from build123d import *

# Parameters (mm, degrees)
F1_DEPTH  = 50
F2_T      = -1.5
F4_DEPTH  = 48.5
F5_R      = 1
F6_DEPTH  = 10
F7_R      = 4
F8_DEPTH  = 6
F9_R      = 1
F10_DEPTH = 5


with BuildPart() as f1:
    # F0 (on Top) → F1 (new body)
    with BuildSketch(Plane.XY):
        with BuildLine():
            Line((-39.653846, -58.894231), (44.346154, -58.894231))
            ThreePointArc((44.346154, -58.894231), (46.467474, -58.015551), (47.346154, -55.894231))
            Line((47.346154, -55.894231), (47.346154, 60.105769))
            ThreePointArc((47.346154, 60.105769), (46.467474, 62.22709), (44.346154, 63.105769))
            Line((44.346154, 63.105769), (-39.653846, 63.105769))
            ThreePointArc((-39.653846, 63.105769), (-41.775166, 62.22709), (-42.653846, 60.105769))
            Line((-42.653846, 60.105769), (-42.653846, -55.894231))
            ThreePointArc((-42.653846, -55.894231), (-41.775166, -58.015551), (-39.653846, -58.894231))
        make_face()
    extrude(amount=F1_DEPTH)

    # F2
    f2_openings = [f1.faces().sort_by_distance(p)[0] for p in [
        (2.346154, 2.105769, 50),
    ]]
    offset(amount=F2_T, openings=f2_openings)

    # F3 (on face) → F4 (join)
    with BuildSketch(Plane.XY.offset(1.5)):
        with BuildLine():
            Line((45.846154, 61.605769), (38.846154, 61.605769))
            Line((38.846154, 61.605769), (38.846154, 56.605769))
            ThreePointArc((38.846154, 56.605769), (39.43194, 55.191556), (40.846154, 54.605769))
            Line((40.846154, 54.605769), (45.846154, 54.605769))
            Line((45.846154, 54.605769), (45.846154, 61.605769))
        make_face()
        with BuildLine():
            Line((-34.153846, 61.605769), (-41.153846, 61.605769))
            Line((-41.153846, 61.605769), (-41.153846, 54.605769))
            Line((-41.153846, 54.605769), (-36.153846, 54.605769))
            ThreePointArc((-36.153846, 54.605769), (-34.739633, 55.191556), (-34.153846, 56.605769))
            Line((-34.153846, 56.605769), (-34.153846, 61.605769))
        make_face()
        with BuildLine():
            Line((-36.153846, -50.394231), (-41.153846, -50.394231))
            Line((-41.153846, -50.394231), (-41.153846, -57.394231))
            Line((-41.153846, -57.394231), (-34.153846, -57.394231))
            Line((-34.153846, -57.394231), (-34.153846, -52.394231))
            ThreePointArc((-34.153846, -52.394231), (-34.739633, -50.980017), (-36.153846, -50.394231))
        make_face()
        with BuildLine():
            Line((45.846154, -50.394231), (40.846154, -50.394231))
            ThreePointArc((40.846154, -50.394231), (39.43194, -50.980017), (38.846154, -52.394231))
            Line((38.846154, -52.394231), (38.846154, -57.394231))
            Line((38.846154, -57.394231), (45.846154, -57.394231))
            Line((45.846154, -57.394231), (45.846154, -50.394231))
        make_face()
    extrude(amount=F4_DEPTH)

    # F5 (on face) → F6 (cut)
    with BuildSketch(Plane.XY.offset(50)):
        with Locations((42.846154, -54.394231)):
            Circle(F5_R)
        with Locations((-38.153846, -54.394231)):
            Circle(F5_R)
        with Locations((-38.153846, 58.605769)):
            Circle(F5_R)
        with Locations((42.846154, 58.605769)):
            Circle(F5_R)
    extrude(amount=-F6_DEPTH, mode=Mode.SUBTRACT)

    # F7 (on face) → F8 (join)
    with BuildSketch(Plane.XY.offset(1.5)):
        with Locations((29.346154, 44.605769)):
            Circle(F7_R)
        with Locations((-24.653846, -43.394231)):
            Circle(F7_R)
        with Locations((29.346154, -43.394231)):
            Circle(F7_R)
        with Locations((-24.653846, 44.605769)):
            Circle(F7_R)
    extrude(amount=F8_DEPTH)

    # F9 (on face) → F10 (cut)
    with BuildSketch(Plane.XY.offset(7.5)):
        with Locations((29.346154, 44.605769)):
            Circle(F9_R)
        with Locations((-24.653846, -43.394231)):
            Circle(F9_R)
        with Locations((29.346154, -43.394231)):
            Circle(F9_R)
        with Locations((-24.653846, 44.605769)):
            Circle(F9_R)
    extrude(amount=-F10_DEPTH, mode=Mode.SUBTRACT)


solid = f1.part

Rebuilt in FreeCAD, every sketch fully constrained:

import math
import FreeCAD as App
import Part
import Sketcher
Q = App.Units.Quantity


def faces_at(feature, points):
    """Names of the faces that lie closest to the given points."""
    faces = feature.Shape.Faces
    near = lambda p: min(range(len(faces)), key=lambda i: faces[i].distToShape(Part.Vertex(*p))[0])
    return sorted({f"Face{near(p) + 1}" for p in points})

doc = App.newDocument("Part")
body = doc.addObject("PartDesign::Body", "Body")

# Sketch on XY plane
sketch1 = body.newObject("Sketcher::SketchObject", "Sketch")
sketch1.AttachmentSupport = (doc.getObject("XY_Plane"), [""])
sketch1.MapMode = "FlatFace"
sketch1.addGeometry(Part.LineSegment(App.Vector(-39.653846, -58.894231, 0), App.Vector(44.346154, -58.894231, 0)), False)
sketch1.addGeometry(Part.ArcOfCircle(Part.Circle(App.Vector(44.346153, -55.89423, 0), App.Vector(0, 0, 1), 3.000001), math.radians(-89.999978), math.radians(-0.000022)), False)
sketch1.addGeometry(Part.LineSegment(App.Vector(47.346154, -55.894231, 0), App.Vector(47.346154, 60.105769, 0)), False)
sketch1.addGeometry(Part.ArcOfCircle(Part.Circle(App.Vector(44.346155, 60.10577, 0), App.Vector(0, 0, 1), 2.999999), math.radians(-0.00001), math.radians(90.00001)), False)
sketch1.addGeometry(Part.LineSegment(App.Vector(44.346154, 63.105769, 0), App.Vector(-39.653846, 63.105769, 0)), False)
sketch1.addGeometry(Part.ArcOfCircle(Part.Circle(App.Vector(-39.653847, 60.10577, 0), App.Vector(0, 0, 1), 2.999999), math.radians(89.99999), math.radians(180.00001)), False)
sketch1.addGeometry(Part.LineSegment(App.Vector(-42.653846, 60.105769, 0), App.Vector(-42.653846, -55.894231, 0)), False)
sketch1.addGeometry(Part.ArcOfCircle(Part.Circle(App.Vector(-39.653845, -55.89423, 0), App.Vector(0, 0, 1), 3.000001), math.radians(-179.999978), math.radians(-90.000022)), False)
sketch1.addConstraint(Sketcher.Constraint("Tangent", 0, 2, 1, 1))
sketch1.addConstraint(Sketcher.Constraint("Tangent", 1, 2, 2, 1))
sketch1.addConstraint(Sketcher.Constraint("Tangent", 2, 2, 3, 1))
sketch1.addConstraint(Sketcher.Constraint("Tangent", 3, 2, 4, 1))
sketch1.addConstraint(Sketcher.Constraint("Tangent", 4, 2, 5, 1))
sketch1.addConstraint(Sketcher.Constraint("Tangent", 5, 2, 6, 1))
sketch1.addConstraint(Sketcher.Constraint("Tangent", 6, 2, 7, 1))
sketch1.addConstraint(Sketcher.Constraint("Tangent", 7, 2, 0, 1))
sketch1.addConstraint(Sketcher.Constraint("Horizontal", 0))
sketch1.addConstraint(Sketcher.Constraint("Vertical", 2))
sketch1.addConstraint(Sketcher.Constraint("Horizontal", 4))
sketch1.addConstraint(Sketcher.Constraint("Vertical", 6))
sketch1.addConstraint(Sketcher.Constraint("Equal", 1, 3))
sketch1.addConstraint(Sketcher.Constraint("Equal", 3, 5))
sketch1.addConstraint(Sketcher.Constraint("Equal", 5, 7))
sketch1.addConstraint(Sketcher.Constraint("Radius", 1, Q("3.000001 mm")))
sketch1.addConstraint(Sketcher.Constraint("DistanceX", 0, 1, 0, 2, Q("84 mm")))
sketch1.addConstraint(Sketcher.Constraint("DistanceY", 2, 1, 2, 2, Q("116 mm")))
sketch1.addConstraint(Sketcher.Constraint("DistanceY", 1, 3, -1, 1, Q("55.89423 mm")))
sketch1.addConstraint(Sketcher.Constraint("DistanceX", -1, 1, 1, 3, Q("44.346153 mm")))
pad1 = body.newObject("PartDesign::Pad", "Pad")
pad1.Profile = sketch1
pad1.Length = 50
doc.recompute()

thickness = body.newObject("PartDesign::Thickness", "Thickness")
thickness.Base = (pad1, faces_at(pad1, [(2.346, 2.106, 50)]))
thickness.Value = 1.5
thickness.Reversed = True
thickness.Join = "Arc"

# Sketch on XY plane
sketch2 = body.newObject("Sketcher::SketchObject", "Sketch001")
sketch2.AttachmentSupport = (doc.getObject("XY_Plane"), [""])
sketch2.MapMode = "FlatFace"
sketch2.AttachmentOffset = App.Placement(App.Vector(0, 0, 1.5), App.Rotation())
sketch2.addGeometry(Part.LineSegment(App.Vector(45.846154, 61.605769, 0), App.Vector(38.846154, 61.605769, 0)), False)
sketch2.addGeometry(Part.LineSegment(App.Vector(38.846154, 61.605769, 0), App.Vector(38.846154, 56.605769, 0)), False)
sketch2.addGeometry(Part.ArcOfCircle(Part.Circle(App.Vector(40.846154, 56.605769, 0), App.Vector(0, 0, 1), 2), math.radians(-179.999994), math.radians(-90.000006)), False)
sketch2.addGeometry(Part.LineSegment(App.Vector(40.846154, 54.605769, 0), App.Vector(45.846154, 54.605769, 0)), False)
sketch2.addGeometry(Part.LineSegment(App.Vector(45.846154, 54.605769, 0), App.Vector(45.846154, 61.605769, 0)), False)
sketch2.addGeometry(Part.LineSegment(App.Vector(-34.153846, 61.605769, 0), App.Vector(-41.153846, 61.605769, 0)), False)
sketch2.addGeometry(Part.LineSegment(App.Vector(-41.153846, 61.605769, 0), App.Vector(-41.153846, 54.605769, 0)), False)
sketch2.addGeometry(Part.LineSegment(App.Vector(-41.153846, 54.605769, 0), App.Vector(-36.153846, 54.605769, 0)), False)
sketch2.addGeometry(Part.ArcOfCircle(Part.Circle(App.Vector(-36.153848, 56.605771, 0), App.Vector(0, 0, 1), 2.000002), math.radians(-89.999945), math.radians(-0.000055)), False)
sketch2.addGeometry(Part.LineSegment(App.Vector(-34.153846, 56.605769, 0), App.Vector(-34.153846, 61.605769, 0)), False)
sketch2.addGeometry(Part.LineSegment(App.Vector(-36.153846, -50.394231, 0), App.Vector(-41.153846, -50.394231, 0)), False)
sketch2.addGeometry(Part.LineSegment(App.Vector(-41.153846, -50.394231, 0), App.Vector(-41.153846, -57.394231, 0)), False)
sketch2.addGeometry(Part.LineSegment(App.Vector(-41.153846, -57.394231, 0), App.Vector(-34.153846, -57.394231, 0)), False)
sketch2.addGeometry(Part.LineSegment(App.Vector(-34.153846, -57.394231, 0), App.Vector(-34.153846, -52.394231, 0)), False)
sketch2.addGeometry(Part.ArcOfCircle(Part.Circle(App.Vector(-36.153846, -52.394231, 0), App.Vector(0, 0, 1), 2), math.radians(0.000006), math.radians(89.999994)), False)
sketch2.addGeometry(Part.LineSegment(App.Vector(45.846154, -50.394231, 0), App.Vector(40.846154, -50.394231, 0)), False)
sketch2.addGeometry(Part.ArcOfCircle(Part.Circle(App.Vector(40.846153, -52.39423, 0), App.Vector(0, 0, 1), 1.999999), math.radians(89.999957), math.radians(180.000043)), False)
sketch2.addGeometry(Part.LineSegment(App.Vector(38.846154, -52.394231, 0), App.Vector(38.846154, -57.394231, 0)), False)
sketch2.addGeometry(Part.LineSegment(App.Vector(38.846154, -57.394231, 0), App.Vector(45.846154, -57.394231, 0)), False)
sketch2.addGeometry(Part.LineSegment(App.Vector(45.846154, -57.394231, 0), App.Vector(45.846154, -50.394231, 0)), False)
sketch2.addConstraint(Sketcher.Constraint("Coincident", 0, 2, 1, 1))
sketch2.addConstraint(Sketcher.Constraint("Tangent", 1, 2, 2, 1))
sketch2.addConstraint(Sketcher.Constraint("Tangent", 2, 2, 3, 1))
sketch2.addConstraint(Sketcher.Constraint("Coincident", 3, 2, 4, 1))
sketch2.addConstraint(Sketcher.Constraint("Coincident", 4, 2, 0, 1))
sketch2.addConstraint(Sketcher.Constraint("Coincident", 5, 2, 6, 1))
sketch2.addConstraint(Sketcher.Constraint("Coincident", 6, 2, 7, 1))
sketch2.addConstraint(Sketcher.Constraint("Tangent", 7, 2, 8, 1))
sketch2.addConstraint(Sketcher.Constraint("Tangent", 8, 2, 9, 1))
sketch2.addConstraint(Sketcher.Constraint("Coincident", 9, 2, 5, 1))
sketch2.addConstraint(Sketcher.Constraint("Coincident", 10, 2, 11, 1))
sketch2.addConstraint(Sketcher.Constraint("Coincident", 11, 2, 12, 1))
sketch2.addConstraint(Sketcher.Constraint("Coincident", 12, 2, 13, 1))
sketch2.addConstraint(Sketcher.Constraint("Tangent", 13, 2, 14, 1))
sketch2.addConstraint(Sketcher.Constraint("Tangent", 14, 2, 10, 1))
sketch2.addConstraint(Sketcher.Constraint("Tangent", 15, 2, 16, 1))
sketch2.addConstraint(Sketcher.Constraint("Tangent", 16, 2, 17, 1))
sketch2.addConstraint(Sketcher.Constraint("Coincident", 17, 2, 18, 1))
sketch2.addConstraint(Sketcher.Constraint("Coincident", 18, 2, 19, 1))
sketch2.addConstraint(Sketcher.Constraint("Coincident", 19, 2, 15, 1))
sketch2.addConstraint(Sketcher.Constraint("Horizontal", 0))
sketch2.addConstraint(Sketcher.Constraint("Vertical", 1))
sketch2.addConstraint(Sketcher.Constraint("Horizontal", 3))
sketch2.addConstraint(Sketcher.Constraint("Vertical", 4))
sketch2.addConstraint(Sketcher.Constraint("Horizontal", 5))
sketch2.addConstraint(Sketcher.Constraint("Vertical", 6))
sketch2.addConstraint(Sketcher.Constraint("Horizontal", 7))
sketch2.addConstraint(Sketcher.Constraint("Vertical", 9))
sketch2.addConstraint(Sketcher.Constraint("Horizontal", 10))
sketch2.addConstraint(Sketcher.Constraint("Vertical", 11))
sketch2.addConstraint(Sketcher.Constraint("Horizontal", 12))
sketch2.addConstraint(Sketcher.Constraint("Vertical", 13))
sketch2.addConstraint(Sketcher.Constraint("Horizontal", 15))
sketch2.addConstraint(Sketcher.Constraint("Vertical", 17))
sketch2.addConstraint(Sketcher.Constraint("Horizontal", 18))
sketch2.addConstraint(Sketcher.Constraint("Vertical", 19))
sketch2.addConstraint(Sketcher.Constraint("Equal", 2, 8))
sketch2.addConstraint(Sketcher.Constraint("Equal", 8, 14))
sketch2.addConstraint(Sketcher.Constraint("Equal", 14, 16))
sketch2.addConstraint(Sketcher.Constraint("Horizontal", 2, 3, 8, 3))
sketch2.addConstraint(Sketcher.Constraint("Horizontal", 14, 3, 16, 3))
sketch2.addConstraint(Sketcher.Constraint("Horizontal", 4, 2, 5, 2))
sketch2.addConstraint(Sketcher.Constraint("Horizontal", 12, 2, 17, 2))
sketch2.addConstraint(Sketcher.Constraint("Vertical", 8, 3, 14, 3))
sketch2.addConstraint(Sketcher.Constraint("Vertical", 2, 3, 16, 3))
sketch2.addConstraint(Sketcher.Constraint("Vertical", 6, 2, 10, 2))
sketch2.addConstraint(Sketcher.Constraint("Vertical", 4, 2, 18, 2))
sketch2.addConstraint(Sketcher.Constraint("Equal", 0, 5))
sketch2.addConstraint(Sketcher.Constraint("Equal", 15, 1))
sketch2.addConstraint(Sketcher.Constraint("Equal", 6, 11))
sketch2.addConstraint(Sketcher.Constraint("Radius", 2, Q("2 mm")))
sketch2.addConstraint(Sketcher.Constraint("DistanceX", 0, 2, 0, 1, Q("7 mm")))
sketch2.addConstraint(Sketcher.Constraint("DistanceX", 14, 3, 2, 3, Q("77 mm")))
sketch2.addConstraint(Sketcher.Constraint("DistanceY", 14, 3, 2, 3, Q("109 mm")))
sketch2.addConstraint(Sketcher.Constraint("DistanceY", -1, 1, 2, 3, Q("56.605769 mm")))
sketch2.addConstraint(Sketcher.Constraint("DistanceX", -1, 1, 2, 3, Q("40.846154 mm")))
pad2 = body.newObject("PartDesign::Pad", "Pad001")
pad2.Profile = sketch2
pad2.Length = 48.5

# Sketch on XY plane
sketch3 = body.newObject("Sketcher::SketchObject", "Sketch002")
sketch3.AttachmentSupport = (doc.getObject("XY_Plane"), [""])
sketch3.MapMode = "FlatFace"
sketch3.AttachmentOffset = App.Placement(App.Vector(0, 0, 50), App.Rotation())
sketch3.addGeometry(Part.Circle(App.Vector(42.846154, -54.394231, 0), App.Vector(0, 0, 1), 1), False)
sketch3.addGeometry(Part.Circle(App.Vector(-38.153846, -54.394231, 0), App.Vector(0, 0, 1), 1), False)
sketch3.addGeometry(Part.Circle(App.Vector(-38.153846, 58.605769, 0), App.Vector(0, 0, 1), 1), False)
sketch3.addGeometry(Part.Circle(App.Vector(42.846154, 58.605769, 0), App.Vector(0, 0, 1), 1), False)
sketch3.addConstraint(Sketcher.Constraint("Equal", 0, 1))
sketch3.addConstraint(Sketcher.Constraint("Equal", 1, 2))
sketch3.addConstraint(Sketcher.Constraint("Equal", 2, 3))
sketch3.addConstraint(Sketcher.Constraint("Horizontal", 0, 3, 1, 3))
sketch3.addConstraint(Sketcher.Constraint("Horizontal", 2, 3, 3, 3))
sketch3.addConstraint(Sketcher.Constraint("Vertical", 1, 3, 2, 3))
sketch3.addConstraint(Sketcher.Constraint("Vertical", 0, 3, 3, 3))
sketch3.addConstraint(Sketcher.Constraint("Diameter", 0, Q("2 mm")))
sketch3.addConstraint(Sketcher.Constraint("DistanceX", 1, 3, 0, 3, Q("81 mm")))
sketch3.addConstraint(Sketcher.Constraint("DistanceY", 1, 3, 2, 3, Q("113 mm")))
sketch3.addConstraint(Sketcher.Constraint("DistanceY", 0, 3, -1, 1, Q("54.394231 mm")))
sketch3.addConstraint(Sketcher.Constraint("DistanceX", -1, 1, 0, 3, Q("42.846154 mm")))
pocket1 = body.newObject("PartDesign::Pocket", "Pocket")
pocket1.Profile = sketch3
pocket1.Length = 10

# Sketch on XY plane
sketch4 = body.newObject("Sketcher::SketchObject", "Sketch003")
sketch4.AttachmentSupport = (doc.getObject("XY_Plane"), [""])
sketch4.MapMode = "FlatFace"
sketch4.AttachmentOffset = App.Placement(App.Vector(0, 0, 1.5), App.Rotation())
sketch4.addGeometry(Part.Circle(App.Vector(29.346154, 44.605769, 0), App.Vector(0, 0, 1), 4), False)
sketch4.addGeometry(Part.Circle(App.Vector(-24.653846, -43.394231, 0), App.Vector(0, 0, 1), 4), False)
sketch4.addGeometry(Part.Circle(App.Vector(29.346154, -43.394231, 0), App.Vector(0, 0, 1), 4), False)
sketch4.addGeometry(Part.Circle(App.Vector(-24.653846, 44.605769, 0), App.Vector(0, 0, 1), 4), False)
sketch4.addConstraint(Sketcher.Constraint("Equal", 0, 1))
sketch4.addConstraint(Sketcher.Constraint("Equal", 1, 2))
sketch4.addConstraint(Sketcher.Constraint("Equal", 2, 3))
sketch4.addConstraint(Sketcher.Constraint("Horizontal", 1, 3, 2, 3))
sketch4.addConstraint(Sketcher.Constraint("Horizontal", 0, 3, 3, 3))
sketch4.addConstraint(Sketcher.Constraint("Vertical", 0, 3, 2, 3))
sketch4.addConstraint(Sketcher.Constraint("Vertical", 1, 3, 3, 3))
sketch4.addConstraint(Sketcher.Constraint("Diameter", 0, Q("8 mm")))
sketch4.addConstraint(Sketcher.Constraint("DistanceX", 1, 3, 0, 3, Q("54 mm")))
sketch4.addConstraint(Sketcher.Constraint("DistanceY", 1, 3, 0, 3, Q("88 mm")))
sketch4.addConstraint(Sketcher.Constraint("DistanceY", -1, 1, 0, 3, Q("44.605769 mm")))
sketch4.addConstraint(Sketcher.Constraint("DistanceX", -1, 1, 0, 3, Q("29.346154 mm")))
pad3 = body.newObject("PartDesign::Pad", "Pad002")
pad3.Profile = sketch4
pad3.Length = 6

# Sketch on XY plane
sketch5 = body.newObject("Sketcher::SketchObject", "Sketch004")
sketch5.AttachmentSupport = (doc.getObject("XY_Plane"), [""])
sketch5.MapMode = "FlatFace"
sketch5.AttachmentOffset = App.Placement(App.Vector(0, 0, 7.5), App.Rotation())
sketch5.addGeometry(Part.Circle(App.Vector(29.346154, 44.605769, 0), App.Vector(0, 0, 1), 1), False)
sketch5.addGeometry(Part.Circle(App.Vector(-24.653846, -43.394231, 0), App.Vector(0, 0, 1), 1), False)
sketch5.addGeometry(Part.Circle(App.Vector(29.346154, -43.394231, 0), App.Vector(0, 0, 1), 1), False)
sketch5.addGeometry(Part.Circle(App.Vector(-24.653846, 44.605769, 0), App.Vector(0, 0, 1), 1), False)
sketch5.addConstraint(Sketcher.Constraint("Equal", 0, 1))
sketch5.addConstraint(Sketcher.Constraint("Equal", 1, 2))
sketch5.addConstraint(Sketcher.Constraint("Equal", 2, 3))
sketch5.addConstraint(Sketcher.Constraint("Horizontal", 1, 3, 2, 3))
sketch5.addConstraint(Sketcher.Constraint("Horizontal", 0, 3, 3, 3))
sketch5.addConstraint(Sketcher.Constraint("Vertical", 0, 3, 2, 3))
sketch5.addConstraint(Sketcher.Constraint("Vertical", 1, 3, 3, 3))
sketch5.addConstraint(Sketcher.Constraint("Diameter", 0, Q("2 mm")))
sketch5.addConstraint(Sketcher.Constraint("DistanceX", 1, 3, 0, 3, Q("54 mm")))
sketch5.addConstraint(Sketcher.Constraint("DistanceY", 1, 3, 0, 3, Q("88 mm")))
sketch5.addConstraint(Sketcher.Constraint("DistanceY", -1, 1, 0, 3, Q("44.605769 mm")))
sketch5.addConstraint(Sketcher.Constraint("DistanceX", -1, 1, 0, 3, Q("29.346154 mm")))
pocket2 = body.newObject("PartDesign::Pocket", "Pocket001")
pocket2.Profile = sketch5
pocket2.Length = 5

doc.recompute()
